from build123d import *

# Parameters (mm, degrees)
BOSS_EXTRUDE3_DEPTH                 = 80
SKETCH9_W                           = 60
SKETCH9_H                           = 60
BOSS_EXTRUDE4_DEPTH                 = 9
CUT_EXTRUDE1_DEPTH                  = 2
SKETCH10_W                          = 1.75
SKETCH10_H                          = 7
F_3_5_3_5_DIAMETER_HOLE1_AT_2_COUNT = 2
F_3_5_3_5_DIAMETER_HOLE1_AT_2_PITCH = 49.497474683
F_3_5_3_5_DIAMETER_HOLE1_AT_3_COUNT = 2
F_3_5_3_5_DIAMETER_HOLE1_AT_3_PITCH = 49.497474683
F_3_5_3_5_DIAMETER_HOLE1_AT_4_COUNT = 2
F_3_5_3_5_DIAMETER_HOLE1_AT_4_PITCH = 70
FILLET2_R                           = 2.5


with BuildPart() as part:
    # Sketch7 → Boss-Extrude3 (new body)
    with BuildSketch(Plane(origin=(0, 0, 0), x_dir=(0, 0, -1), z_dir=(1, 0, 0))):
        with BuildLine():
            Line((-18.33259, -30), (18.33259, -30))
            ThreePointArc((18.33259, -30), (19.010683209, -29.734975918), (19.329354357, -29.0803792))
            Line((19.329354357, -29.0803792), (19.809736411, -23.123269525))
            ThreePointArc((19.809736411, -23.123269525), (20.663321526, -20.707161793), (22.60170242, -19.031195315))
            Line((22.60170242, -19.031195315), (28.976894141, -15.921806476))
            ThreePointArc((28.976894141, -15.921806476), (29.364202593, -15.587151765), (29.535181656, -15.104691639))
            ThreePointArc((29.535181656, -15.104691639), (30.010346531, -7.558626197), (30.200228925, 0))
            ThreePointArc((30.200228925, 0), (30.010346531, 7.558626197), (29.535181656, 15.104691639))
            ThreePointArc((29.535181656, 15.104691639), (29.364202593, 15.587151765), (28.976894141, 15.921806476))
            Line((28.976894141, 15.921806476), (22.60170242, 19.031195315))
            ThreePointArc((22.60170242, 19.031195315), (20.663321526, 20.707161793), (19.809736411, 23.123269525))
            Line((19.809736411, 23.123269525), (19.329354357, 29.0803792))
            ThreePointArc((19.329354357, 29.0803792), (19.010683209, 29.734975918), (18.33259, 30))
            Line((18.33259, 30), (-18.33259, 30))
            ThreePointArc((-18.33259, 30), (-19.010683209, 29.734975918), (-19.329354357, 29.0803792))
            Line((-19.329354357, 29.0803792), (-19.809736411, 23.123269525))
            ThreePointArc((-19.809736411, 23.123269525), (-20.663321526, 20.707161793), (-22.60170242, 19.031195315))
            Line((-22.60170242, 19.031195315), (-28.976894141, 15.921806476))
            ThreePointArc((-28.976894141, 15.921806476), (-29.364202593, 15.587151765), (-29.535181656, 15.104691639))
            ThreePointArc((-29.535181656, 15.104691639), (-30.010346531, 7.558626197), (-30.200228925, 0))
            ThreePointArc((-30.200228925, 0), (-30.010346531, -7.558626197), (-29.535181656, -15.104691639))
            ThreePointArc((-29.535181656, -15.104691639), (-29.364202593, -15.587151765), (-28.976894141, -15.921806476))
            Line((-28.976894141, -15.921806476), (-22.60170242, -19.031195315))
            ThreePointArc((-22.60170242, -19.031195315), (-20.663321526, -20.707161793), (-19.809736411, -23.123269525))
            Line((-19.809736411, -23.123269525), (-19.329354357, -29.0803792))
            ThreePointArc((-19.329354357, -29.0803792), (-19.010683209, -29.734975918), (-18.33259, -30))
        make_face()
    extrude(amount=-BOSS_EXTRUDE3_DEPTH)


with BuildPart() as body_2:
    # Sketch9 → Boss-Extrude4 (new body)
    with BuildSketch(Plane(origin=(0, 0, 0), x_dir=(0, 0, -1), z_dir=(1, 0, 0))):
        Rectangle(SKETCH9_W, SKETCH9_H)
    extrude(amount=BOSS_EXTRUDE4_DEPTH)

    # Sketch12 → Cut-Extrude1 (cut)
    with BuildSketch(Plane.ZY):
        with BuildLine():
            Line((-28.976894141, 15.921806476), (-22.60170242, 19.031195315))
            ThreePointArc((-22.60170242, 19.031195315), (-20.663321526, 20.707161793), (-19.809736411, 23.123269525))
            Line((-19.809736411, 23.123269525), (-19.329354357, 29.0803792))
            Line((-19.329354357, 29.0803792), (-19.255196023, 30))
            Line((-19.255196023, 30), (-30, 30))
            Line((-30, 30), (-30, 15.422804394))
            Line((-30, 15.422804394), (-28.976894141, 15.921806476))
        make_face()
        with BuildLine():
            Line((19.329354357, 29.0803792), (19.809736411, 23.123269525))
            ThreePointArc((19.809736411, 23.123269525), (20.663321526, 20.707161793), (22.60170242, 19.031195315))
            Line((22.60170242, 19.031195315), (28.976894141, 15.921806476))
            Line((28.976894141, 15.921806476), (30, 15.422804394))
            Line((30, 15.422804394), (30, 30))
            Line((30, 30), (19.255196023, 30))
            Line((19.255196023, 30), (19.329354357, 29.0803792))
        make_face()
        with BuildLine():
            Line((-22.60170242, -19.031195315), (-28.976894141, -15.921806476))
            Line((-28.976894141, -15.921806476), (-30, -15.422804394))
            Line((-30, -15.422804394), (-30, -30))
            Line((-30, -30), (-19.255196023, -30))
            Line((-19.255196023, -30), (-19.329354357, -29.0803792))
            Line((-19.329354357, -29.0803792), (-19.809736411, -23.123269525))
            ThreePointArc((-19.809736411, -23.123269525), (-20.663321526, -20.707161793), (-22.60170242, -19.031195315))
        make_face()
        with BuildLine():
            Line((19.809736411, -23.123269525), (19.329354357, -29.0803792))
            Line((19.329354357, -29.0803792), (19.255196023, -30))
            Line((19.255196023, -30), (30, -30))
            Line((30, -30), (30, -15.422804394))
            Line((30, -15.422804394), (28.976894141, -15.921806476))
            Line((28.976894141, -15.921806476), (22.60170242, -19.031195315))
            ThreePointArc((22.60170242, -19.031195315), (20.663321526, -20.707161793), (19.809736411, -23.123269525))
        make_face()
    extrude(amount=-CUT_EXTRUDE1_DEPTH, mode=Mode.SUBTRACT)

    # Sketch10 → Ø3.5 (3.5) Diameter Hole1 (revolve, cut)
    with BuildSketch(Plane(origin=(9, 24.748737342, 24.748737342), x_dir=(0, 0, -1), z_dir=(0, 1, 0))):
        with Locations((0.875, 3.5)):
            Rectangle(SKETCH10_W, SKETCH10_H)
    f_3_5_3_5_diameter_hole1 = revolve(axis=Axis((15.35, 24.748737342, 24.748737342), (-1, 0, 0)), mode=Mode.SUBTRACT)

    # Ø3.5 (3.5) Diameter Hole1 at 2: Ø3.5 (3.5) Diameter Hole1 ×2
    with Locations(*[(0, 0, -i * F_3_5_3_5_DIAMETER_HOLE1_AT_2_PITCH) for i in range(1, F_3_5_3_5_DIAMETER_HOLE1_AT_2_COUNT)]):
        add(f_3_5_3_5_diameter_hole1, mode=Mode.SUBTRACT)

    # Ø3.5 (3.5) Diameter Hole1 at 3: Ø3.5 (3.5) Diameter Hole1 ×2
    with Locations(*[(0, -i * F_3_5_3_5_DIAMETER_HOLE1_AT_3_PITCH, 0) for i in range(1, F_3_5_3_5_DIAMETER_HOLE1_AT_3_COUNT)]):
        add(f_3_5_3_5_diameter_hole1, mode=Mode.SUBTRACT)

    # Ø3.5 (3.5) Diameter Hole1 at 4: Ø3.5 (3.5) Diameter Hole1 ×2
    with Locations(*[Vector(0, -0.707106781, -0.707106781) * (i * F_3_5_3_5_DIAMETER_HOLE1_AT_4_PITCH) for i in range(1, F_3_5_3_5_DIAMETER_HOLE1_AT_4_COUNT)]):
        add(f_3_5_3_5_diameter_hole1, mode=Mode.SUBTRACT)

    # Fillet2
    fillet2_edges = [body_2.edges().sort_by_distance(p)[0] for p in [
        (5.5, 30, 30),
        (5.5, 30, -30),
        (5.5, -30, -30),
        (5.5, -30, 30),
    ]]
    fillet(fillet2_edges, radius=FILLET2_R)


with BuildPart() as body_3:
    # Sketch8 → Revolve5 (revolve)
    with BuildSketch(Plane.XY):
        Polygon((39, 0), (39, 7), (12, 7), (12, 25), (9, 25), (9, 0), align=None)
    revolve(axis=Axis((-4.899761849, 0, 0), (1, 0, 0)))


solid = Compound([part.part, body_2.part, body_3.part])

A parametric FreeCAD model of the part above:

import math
import FreeCAD as App
import Part
import Sketcher

V = App.Vector
Q = App.Units.Quantity


def edges_at(feature, points):
    """Names of the edges that pass closest to the given points."""
    edges = feature.Shape.Edges
    near = lambda p: min(range(len(edges)), key=lambda i: edges[i].distToShape(Part.Vertex(*p))[0])
    return sorted({f"Edge{near(p) + 1}" for p in points})

doc = App.newDocument("Part")
params = doc.addObject("Spreadsheet::Sheet", "Params")
for row, (alias, value) in enumerate([
    ("sketch1_radius", "1 mm"),
    ("sketch1_radius2", "5 mm"),
    ("sketch1_radius3", "200.2 mm"),
    ("pad1_length", "80 mm"),
    ("sketch2_width", "60 mm"),
    ("pad2_length", "9 mm"),
    ("sketch3_radius", "5 mm"),
    ("pocket1_length", "2 mm"),
    ("sketch4_width", "7 mm"),
    ("sketch4_height", "1.75 mm"),
    ("groove_angle", "360 deg"),
    ("linearpattern_pitch", "49.497475 mm"),
    ("linearpattern2_pitch", "49.497475 mm"),
    ("linearpattern3_pitch", "70 mm"),
    ("fillet_radius", "2.5 mm"),
    ("sketch5_width", "27 mm"),
    ("sketch5_width2", "3 mm"),
    ("sketch5_height", "7 mm"),
    ("sketch5_height2", "18 mm"),
    ("revolution_angle", "360 deg"),
], start=1):
    params.set(f"A{row}", alias)
    params.set(f"B{row}", "=" + value)
    params.setAlias(f"B{row}", alias)

body = doc.addObject("PartDesign::Body", "Body")

# Sketch on YZ plane
sketch1 = doc.addObject("Sketcher::SketchObject", "Sketch")
body.addObject(sketch1)
sketch1.AttachmentSupport = (doc.YZ_Plane, [""])
sketch1.MapMode = "FlatFace"
sketch1.addGeometry([
    Part.LineSegment(V(-30, 18.3, 0), V(-30, -18.3, 0)),  # 0
    Part.ArcOfCircle(Part.Circle(V(-29, -18.3, 0), V(0, 0, 1), 1), math.radians(180), math.radians(265)),  # 1
    Part.LineSegment(V(-29.1, -19.3, 0), V(-23.1, -19.8, 0)),  # 2
    Part.ArcOfCircle(Part.Circle(V(-23.5, -24.8, 0), V(0, 0, 1), 5), math.radians(26), math.radians(85)),  # 3
    Part.LineSegment(V(-19, -22.6, 0), V(-15.9, -29, 0)),  # 4
    Part.ArcOfCircle(Part.Circle(V(-15, -28.5, 0), V(0, 0, 1), 1), math.radians(-154), math.radians(-95)),  # 5
    Part.ArcOfCircle(Part.Circle(V(1.2, 170, 0), V(0, 0, 1), 200.2), math.radians(-94.69), math.radians(-90.36)),  # 6
    Part.ArcOfCircle(Part.Circle(V(-1.2, 170, 0), V(0, 0, 1), 200.2), math.radians(-89.64), math.radians(-85.31)),  # 7
    Part.ArcOfCircle(Part.Circle(V(15, -28.5, 0), V(0, 0, 1), 1), math.radians(-85), math.radians(-26)),  # 8
    Part.LineSegment(V(15.9, -29, 0), V(19, -22.6, 0)),  # 9
    Part.ArcOfCircle(Part.Circle(V(23.5, -24.8, 0), V(0, 0, 1), 5), math.radians(95), math.radians(154)),  # 10
    Part.LineSegment(V(23.1, -19.8, 0), V(29.1, -19.3, 0)),  # 11
    Part.ArcOfCircle(Part.Circle(V(29, -18.3, 0), V(0, 0, 1), 1), math.radians(-85), math.radians(0)),  # 12
    Part.LineSegment(V(30, -18.3, 0), V(30, 18.3, 0)),  # 13
    Part.ArcOfCircle(Part.Circle(V(29, 18.3, 0), V(0, 0, 1), 1), math.radians(0), math.radians(85)),  # 14
    Part.LineSegment(V(29.1, 19.3, 0), V(23.1, 19.8, 0)),  # 15
    Part.ArcOfCircle(Part.Circle(V(23.5, 24.8, 0), V(0, 0, 1), 5), math.radians(-154), math.radians(-95)),  # 16
    Part.LineSegment(V(19, 22.6, 0), V(15.9, 29, 0)),  # 17
    Part.ArcOfCircle(Part.Circle(V(15, 28.5, 0), V(0, 0, 1), 1), math.radians(26), math.radians(85)),  # 18
    Part.ArcOfCircle(Part.Circle(V(-1.2, -170, 0), V(0, 0, 1), 200.2), math.radians(85.31), math.radians(89.64)),  # 19
    Part.ArcOfCircle(Part.Circle(V(1.2, -170, 0), V(0, 0, 1), 200.2), math.radians(90.36), math.radians(94.69)),  # 20
    Part.ArcOfCircle(Part.Circle(V(-15, 28.5, 0), V(0, 0, 1), 1), math.radians(95), math.radians(154)),  # 21
    Part.LineSegment(V(-15.9, 29, 0), V(-19, 22.6, 0)),  # 22
    Part.ArcOfCircle(Part.Circle(V(-23.5, 24.8, 0), V(0, 0, 1), 5), math.radians(-85), math.radians(-26)),  # 23
    Part.LineSegment(V(-23.1, 19.8, 0), V(-29.1, 19.3, 0)),  # 24
    Part.ArcOfCircle(Part.Circle(V(-29, 18.3, 0), V(0, 0, 1), 1), math.radians(95), math.radians(180)),  # 25
], False)
sketch1.addConstraint([
    Sketcher.Constraint("Tangent", 0, 2, 1, 1),
    Sketcher.Constraint("Tangent", 1, 2, 2, 1),
    Sketcher.Constraint("Tangent", 2, 2, 3, 2),
    Sketcher.Constraint("Tangent", 3, 1, 4, 1),
    Sketcher.Constraint("Tangent", 4, 2, 5, 1),
    Sketcher.Constraint("Tangent", 5, 2, 6, 1),
    Sketcher.Constraint("Coincident", 6, 2, 7, 1),
    Sketcher.Constraint("Tangent", 7, 2, 8, 1),
    Sketcher.Constraint("Tangent", 8, 2, 9, 1),
    Sketcher.Constraint("Tangent", 9, 2, 10, 2),
    Sketcher.Constraint("Tangent", 10, 1, 11, 1),
    Sketcher.Constraint("Tangent", 11, 2, 12, 1),
    Sketcher.Constraint("Tangent", 12, 2, 13, 1),
    Sketcher.Constraint("Tangent", 13, 2, 14, 1),
    Sketcher.Constraint("Tangent", 14, 2, 15, 1),
    Sketcher.Constraint("Tangent", 15, 2, 16, 2),
    Sketcher.Constraint("Tangent", 16, 1, 17, 1),
    Sketcher.Constraint("Tangent", 17, 2, 18, 1),
    Sketcher.Constraint("Tangent", 18, 2, 19, 1),
    Sketcher.Constraint("Coincident", 19, 2, 20, 1),
    Sketcher.Constraint("Tangent", 20, 2, 21, 1),
    Sketcher.Constraint("Tangent", 21, 2, 22, 1),
    Sketcher.Constraint("Tangent", 22, 2, 23, 2),
    Sketcher.Constraint("Tangent", 23, 1, 24, 1),
    Sketcher.Constraint("Tangent", 24, 2, 25, 1),
    Sketcher.Constraint("Tangent", 25, 2, 0, 1),
    Sketcher.Constraint("Vertical", 0),
    Sketcher.Constraint("Vertical", 13),
    Sketcher.Constraint("Equal", 1, 5),
    Sketcher.Constraint("Equal", 6, 7),
    Sketcher.Constraint("Equal", 5, 8),
    Sketcher.Constraint("Equal", 3, 10),
    Sketcher.Constraint("Equal", 8, 12),
    Sketcher.Constraint("Equal", 12, 14),
    Sketcher.Constraint("Equal", 10, 16),
    Sketcher.Constraint("Equal", 14, 18),
    Sketcher.Constraint("Equal", 7, 19),
    Sketcher.Constraint("Equal", 19, 20),
    Sketcher.Constraint("Equal", 18, 21),
    Sketcher.Constraint("Equal", 16, 23),
    Sketcher.Constraint("Equal", 21, 25),
    Sketcher.Constraint("Symmetric", 1, 3, 14, 3, -1, 1),
    Sketcher.Constraint("Symmetric", 3, 3, 16, 3, -1, 1),
    Sketcher.Constraint("Symmetric", 5, 3, 18, 3, -1, 1),
    Sketcher.Constraint("Symmetric", 7, 3, 20, 3, -1, 1),
    Sketcher.Constraint("Symmetric", 10, 3, 23, 3, -1, 1),
    Sketcher.Constraint("Symmetric", 6, 3, 7, 3, -2),
    Sketcher.Constraint("Symmetric", 3, 3, 10, 3, -2),
    Sketcher.Constraint("PointOnObject", 19, 2, -2),
    Sketcher.Constraint("Parallel", 9, 22),
    Sketcher.Constraint("Parallel", 11, 24),
    Sketcher.Constraint("Horizontal", 5, 3, 8, 3),
    Sketcher.Constraint("Horizontal", 1, 3, 12, 3),
    Sketcher.Constraint("Radius", 1, 1.0),
    Sketcher.Constraint("Radius", 3, 5.0),
    Sketcher.Constraint("Radius", 6, 200.2),
    Sketcher.Constraint("Angle", 4, Q("-63.999999 deg")),
    Sketcher.Constraint("DistanceX", 1, 3, -1, 1, 29.0),
    Sketcher.Constraint("DistanceY", 0, 2, 0, 1, 36.66518),
    Sketcher.Constraint("Distance", 4, 7.093051),
    Sketcher.Constraint("DistanceY", 3, 3, -1, 1, 24.793558),
    Sketcher.Constraint("DistanceX", 1, 2, -1, 1, 29.080379),
    Sketcher.Constraint("DistanceY", 6, 2, -1, 1, 30.200229),
])
sketch1.setExpression("Constraints[53]", "Params.sketch1_radius")
sketch1.setExpression("Constraints[54]", "Params.sketch1_radius2")
sketch1.setExpression("Constraints[55]", "Params.sketch1_radius3")
pad1 = doc.addObject("PartDesign::Pad", "Pad")
body.addObject(pad1)
pad1.Profile = sketch1
pad1.setExpression("Length", "Params.pad1_length")
pad1.Reversed = True
body2 = doc.addObject("PartDesign::Body", "Body001")

# Sketch on YZ plane
sketch2 = doc.addObject("Sketcher::SketchObject", "Sketch001")
body2.addObject(sketch2)
sketch2.AttachmentSupport = (doc.getObject("YZ_Plane001"), [""])
sketch2.MapMode = "FlatFace"
sketch2.addGeometry([
    Part.LineSegment(V(30, 30, 0), V(-30, 30, 0)),
    Part.LineSegment(V(-30, 30, 0), V(-30, -30, 0)),
    Part.LineSegment(V(-30, -30, 0), V(30, -30, 0)),
    Part.LineSegment(V(30, -30, 0), V(30, 30, 0)),
], False)
sketch2.addConstraint([
    Sketcher.Constraint("Coincident", 0, 2, 1, 1),
    Sketcher.Constraint("Coincident", 1, 2, 2, 1),
    Sketcher.Constraint("Coincident", 2, 2, 3, 1),
    Sketcher.Constraint("Coincident", 3, 2, 0, 1),
    Sketcher.Constraint("Horizontal", 0),
    Sketcher.Constraint("Vertical", 1),
    Sketcher.Constraint("Horizontal", 2),
    Sketcher.Constraint("Vertical", 3),
    Sketcher.Constraint("Symmetric", 0, 2, 2, 2, -1, 1),
    Sketcher.Constraint("Equal", 2, 1),
    Sketcher.Constraint("DistanceX", 0, 2, 0, 1, 60.0),
])
sketch2.setExpression("Constraints[10]", "Params.sketch2_width")
pad2 = doc.addObject("PartDesign::Pad", "Pad001")
body2.addObject(pad2)
pad2.Profile = sketch2
pad2.setExpression("Length", "Params.pad2_length")

# Sketch on YZ plane
sketch3 = doc.addObject("Sketcher::SketchObject", "Sketch002")
body2.addObject(sketch3)
sketch3.AttachmentSupport = (doc.getObject("YZ_Plane001"), [""])
sketch3.MapMode = "FlatFace"
sketch3.addGeometry([
    Part.LineSegment(V(15.9, -29, 0), V(19, -22.6, 0)),  # 0
    Part.ArcOfCircle(Part.Circle(V(23.5, -24.8, 0), V(0, 0, 1), 5), math.radians(95), math.radians(154)),  # 1
    Part.LineSegment(V(23.1, -19.8, 0), V(29.1, -19.3, 0)),  # 2
    Part.LineSegment(V(29.1, -19.3, 0), V(30, -19.3, 0)),  # 3
    Part.LineSegment(V(30, -19.3, 0), V(30, -30, 0)),  # 4
    Part.LineSegment(V(30, -30, 0), V(15.4, -30, 0)),  # 5
    Part.LineSegment(V(15.4, -30, 0), V(15.9, -29, 0)),  # 6
    Part.LineSegment(V(29.1, 19.3, 0), V(23.1, 19.8, 0)),  # 7
    Part.ArcOfCircle(Part.Circle(V(23.5, 24.8, 0), V(0, 0, 1), 5), math.radians(-154), math.radians(-95)),  # 8
    Part.LineSegment(V(19, 22.6, 0), V(15.9, 29, 0)),  # 9
    Part.LineSegment(V(15.9, 29, 0), V(15.4, 30, 0)),  # 10
    Part.LineSegment(V(15.4, 30, 0), V(30, 30, 0)),  # 11
    Part.LineSegment(V(30, 30, 0), V(30, 19.3, 0)),  # 12
    Part.LineSegment(V(30, 19.3, 0), V(29.1, 19.3, 0)),  # 13
    Part.LineSegment(V(-19, -22.6, 0), V(-15.9, -29, 0)),  # 14
    Part.LineSegment(V(-15.9, -29, 0), V(-15.4, -30, 0)),  # 15
    Part.LineSegment(V(-15.4, -30, 0), V(-30, -30, 0)),  # 16
    Part.LineSegment(V(-30, -30, 0), V(-30, -19.3, 0)),  # 17
    Part.LineSegment(V(-30, -19.3, 0), V(-29.1, -19.3, 0)),  # 18
    Part.LineSegment(V(-29.1, -19.3, 0), V(-23.1, -19.8, 0)),  # 19
    Part.ArcOfCircle(Part.Circle(V(-23.5, -24.8, 0), V(0, 0, 1), 5), math.radians(26), math.radians(85)),  # 20
    Part.LineSegment(V(-23.1, 19.8, 0), V(-29.1, 19.3, 0)),  # 21
    Part.LineSegment(V(-29.1, 19.3, 0), V(-30, 19.3, 0)),  # 22
    Part.LineSegment(V(-30, 19.3, 0), V(-30, 30, 0)),  # 23
    Part.LineSegment(V(-30, 30, 0), V(-15.4, 30, 0)),  # 24
    Part.LineSegment(V(-15.4, 30, 0), V(-15.9, 29, 0)),  # 25
    Part.LineSegment(V(-15.9, 29, 0), V(-19, 22.6, 0)),  # 26
    Part.ArcOfCircle(Part.Circle(V(-23.5, 24.8, 0), V(0, 0, 1), 5), math.radians(-85), math.radians(-26)),  # 27
], False)
sketch3.addConstraint([
    Sketcher.Constraint("Tangent", 0, 2, 1, 2),
    Sketcher.Constraint("Tangent", 1, 1, 2, 1),
    Sketcher.Constraint("Coincident", 2, 2, 3, 1),
    Sketcher.Constraint("Coincident", 3, 2, 4, 1),
    Sketcher.Constraint("Coincident", 4, 2, 5, 1),
    Sketcher.Constraint("Coincident", 5, 2, 6, 1),
    Sketcher.Constraint("Coincident", 6, 2, 0, 1),
    Sketcher.Constraint("Tangent", 7, 2, 8, 2),
    Sketcher.Constraint("Tangent", 8, 1, 9, 1),
    Sketcher.Constraint("Coincident", 9, 2, 10, 1),
    Sketcher.Constraint("Coincident", 10, 2, 11, 1),
    Sketcher.Constraint("Coincident", 11, 2, 12, 1),
    Sketcher.Constraint("Coincident", 12, 2, 13, 1),
    Sketcher.Constraint("Coincident", 13, 2, 7, 1),
    Sketcher.Constraint("Coincident", 14, 2, 15, 1),
    Sketcher.Constraint("Coincident", 15, 2, 16, 1),
    Sketcher.Constraint("Coincident", 16, 2, 17, 1),
    Sketcher.Constraint("Coincident", 17, 2, 18, 1),
    Sketcher.Constraint("Coincident", 18, 2, 19, 1),
    Sketcher.Constraint("Tangent", 19, 2, 20, 2),
    Sketcher.Constraint("Tangent", 20, 1, 14, 1),
    Sketcher.Constraint("Coincident", 21, 2, 22, 1),
    Sketcher.Constraint("Coincident", 22, 2, 23, 1),
    Sketcher.Constraint("Coincident", 23, 2, 24, 1),
    Sketcher.Constraint("Coincident", 24, 2, 25, 1),
    Sketcher.Constraint("Coincident", 25, 2, 26, 1),
    Sketcher.Constraint("Tangent", 26, 2, 27, 2),
    Sketcher.Constraint("Tangent", 27, 1, 21, 1),
    Sketcher.Constraint("Vertical", 4),
    Sketcher.Constraint("Horizontal", 5),
    Sketcher.Constraint("Horizontal", 11),
    Sketcher.Constraint("Vertical", 12),
    Sketcher.Constraint("Horizontal", 16),
    Sketcher.Constraint("Vertical", 17),
    Sketcher.Constraint("Vertical", 23),
    Sketcher.Constraint("Horizontal", 24),
    Sketcher.Constraint("Equal", 1, 8),
    Sketcher.Constraint("Equal", 8, 20),
    Sketcher.Constraint("Equal", 20, 27),
    Sketcher.Constraint("Symmetric", 8, 3, 20, 3, -1, 1),
    Sketcher.Constraint("Symmetric", 1, 3, 27, 3, -1, 1),
    Sketcher.Constraint("Symmetric", 9, 2, 14, 2, -1, 1),
    Sketcher.Constraint("Symmetric", 10, 2, 15, 2, -1, 1),
    Sketcher.Constraint("Symmetric", 12, 2, 17, 2, -1, 1),
    Sketcher.Constraint("Symmetric", 13, 2, 18, 2, -1, 1),
    Sketcher.Constraint("Symmetric", 2, 2, 21, 2, -1, 1),
    Sketcher.Constraint("Symmetric", 3, 2, 22, 2, -1, 1),
    Sketcher.Constraint("Symmetric", 5, 2, 24, 2, -1, 1),
    Sketcher.Constraint("Symmetric", 6, 2, 25, 2, -1, 1),
    Sketcher.Constraint("Symmetric", 1, 3, 20, 3, -2),
    Sketcher.Constraint("Symmetric", 6, 2, 14, 2, -2),
    Sketcher.Constraint("Symmetric", 5, 2, 15, 2, -2),
    Sketcher.Constraint("Symmetric", 3, 2, 17, 2, -2),
    Sketcher.Constraint("Symmetric", 2, 2, 18, 2, -2),
    Sketcher.Constraint("Parallel", 2, 3),
    Sketcher.Constraint("Parallel", 0, 6),
    Sketcher.Constraint("Radius", 1, 5.0),
    Sketcher.Constraint("Angle", 0, Q("63.999999 deg")),
    Sketcher.Constraint("DistanceX", -1, 1, 3, 2, 30.0),
    Sketcher.Constraint("DistanceY", 4, 2, -1, 1, 30.0),
    Sketcher.Constraint("DistanceX", 14, 2, 0, 2, 34.953002),
    Sketcher.Constraint("DistanceX", 15, 2, 0, 2, 34.454),
    Sketcher.Constraint("DistanceY", 12, 2, 9, 2, 9.721698),
    Sketcher.Constraint("Distance", 0, 7.093051),
    Sketcher.Constraint("DistanceX", -1, 1, 2, 2, 29.080379),
])
sketch3.setExpression("Constraints[56]", "Params.sketch3_radius")
pocket1 = doc.addObject("PartDesign::Pocket", "Pocket")
body2.addObject(pocket1)
pocket1.Profile = sketch3
pocket1.setExpression("Length", "Params.pocket1_length")
pocket1.Reversed = True

# Sketch on XZ plane
sketch4 = doc.addObject("Sketcher::SketchObject", "Sketch003")
body2.addObject(sketch4)
sketch4.AttachmentSupport = (doc.getObject("XZ_Plane001"), [""])
sketch4.MapMode = "FlatFace"
sketch4.AttachmentOffset = App.Placement(V(0, 0, -24.748737), App.Rotation())
sketch4.addGeometry([
    Part.LineSegment(V(2, 24.7, 0), V(9, 24.7, 0)),
    Part.LineSegment(V(9, 24.7, 0), V(9, 23, 0)),
    Part.LineSegment(V(9, 23, 0), V(2, 23, 0)),
    Part.LineSegment(V(2, 23, 0), V(2, 24.7, 0)),
], False)
sketch4.addGeometry(Part.LineSegment(V(9, 24.7, 0), V(2, 24.7, 0)), True)  # axis
sketch4.addConstraint([
    Sketcher.Constraint("Coincident", 0, 2, 1, 1),
    Sketcher.Constraint("Coincident", 1, 2, 2, 1),
    Sketcher.Constraint("Coincident", 2, 2, 3, 1),
    Sketcher.Constraint("Coincident", 3, 2, 0, 1),
    Sketcher.Constraint("Horizontal", 0),
    Sketcher.Constraint("Vertical", 1),
    Sketcher.Constraint("Horizontal", 2),
    Sketcher.Constraint("Vertical", 3),
    Sketcher.Constraint("Horizontal", 4),
    Sketcher.Constraint("Coincident", 4, 1, 0, 2),
    Sketcher.Constraint("Vertical", 2, 2, 4, 2),
    Sketcher.Constraint("DistanceX", 0, 1, 0, 2, 7.0),
    Sketcher.Constraint("DistanceX", -1, 1, 0, 2, 9.0),
    Sketcher.Constraint("DistanceY", 1, 2, 1, 1, 1.75),
    Sketcher.Constraint("DistanceY", -1, 1, 0, 2, 24.748737),
])
sketch4.setExpression("Constraints[11]", "Params.sketch4_width")
sketch4.setExpression("Constraints[13]", "Params.sketch4_height")
groove = doc.addObject("PartDesign::Groove", "Groove")
body2.addObject(groove)
groove.Profile = sketch4
groove.ReferenceAxis = (sketch4, ["Axis0"])
groove.setExpression("Angle", "Params.groove_angle")
doc.recompute()

linearpattern = doc.addObject("PartDesign::LinearPattern", "LinearPattern")
body2.addObject(linearpattern)
linearpattern.Originals = [groove]
linearpattern.Direction = (doc.getObject("Z_Axis001"), [""])
linearpattern.Mode = "offset"
linearpattern.setExpression("Offset", "Params.linearpattern_pitch")
linearpattern.Occurrences = 2
linearpattern.Reversed = True
body2.Tip = linearpattern
doc.recompute()

linearpattern2 = doc.addObject("PartDesign::LinearPattern", "LinearPattern001")
body2.addObject(linearpattern2)
linearpattern2.Originals = [groove]
linearpattern2.Direction = (doc.getObject("Y_Axis001"), [""])
linearpattern2.Mode = "offset"
linearpattern2.setExpression("Offset", "Params.linearpattern2_pitch")
linearpattern2.Occurrences = 2
linearpattern2.Reversed = True
body2.Tip = linearpattern2
doc.recompute()

datumline = doc.addObject("PartDesign::Line", "DatumLine")
body2.addObject(datumline)
datumline.Placement = App.Placement(V(0, 0, 0), App.Rotation(V(0, 0, 1), V(0, -0.707106781, -0.707106781)))
linearpattern3 = doc.addObject("PartDesign::LinearPattern", "LinearPattern002")
body2.addObject(linearpattern3)
linearpattern3.Originals = [groove]
linearpattern3.Direction = (datumline, [""])
linearpattern3.Mode = "offset"
linearpattern3.setExpression("Offset", "Params.linearpattern3_pitch")
linearpattern3.Occurrences = 2
body2.Tip = linearpattern3
doc.recompute()

fillet = doc.addObject("PartDesign::Fillet", "Fillet")
body2.addObject(fillet)
fillet.Base = (linearpattern3, edges_at(linearpattern3, [
    (5.5, 30, 30),
    (5.5, 30, -30),
    (5.5, -30, -30),
    (5.5, -30, 30),
]))
fillet.setExpression("Radius", "Params.fillet_radius")
body3 = doc.addObject("PartDesign::Body", "Body002")

# Sketch on XY plane
sketch5 = doc.addObject("Sketcher::SketchObject", "Sketch004")
body3.addObject(sketch5)
sketch5.AttachmentSupport = (doc.getObject("XY_Plane002"), [""])
sketch5.MapMode = "FlatFace"
sketch5.addGeometry([
    Part.LineSegment(V(39, 0, 0), V(39, 7, 0)),  # 0
    Part.LineSegment(V(39, 7, 0), V(12, 7, 0)),  # 1
    Part.LineSegment(V(12, 7, 0), V(12, 25, 0)),  # 2
    Part.LineSegment(V(12, 25, 0), V(9, 25, 0)),  # 3
    Part.LineSegment(V(9, 25, 0), V(9, 0, 0)),  # 4
    Part.LineSegment(V(9, 0, 0), V(39, 0, 0)),  # 5
], False)
sketch5.addConstraint([
    Sketcher.Constraint("Coincident", 0, 2, 1, 1),
    Sketcher.Constraint("Coincident", 1, 2, 2, 1),
    Sketcher.Constraint("Coincident", 2, 2, 3, 1),
    Sketcher.Constraint("Coincident", 3, 2, 4, 1),
    Sketcher.Constraint("Coincident", 4, 2, 5, 1),
    Sketcher.Constraint("Coincident", 5, 2, 0, 1),
    Sketcher.Constraint("Vertical", 0),
    Sketcher.Constraint("Horizontal", 1),
    Sketcher.Constraint("Vertical", 2),
    Sketcher.Constraint("Horizontal", 3),
    Sketcher.Constraint("Vertical", 4),
    Sketcher.Constraint("Horizontal", 5),
    Sketcher.Constraint("PointOnObject", 4, 2, -1),
    Sketcher.Constraint("DistanceX", 1, 2, 1, 1, 27.0),
    Sketcher.Constraint("DistanceX", 3, 2, 3, 1, 3.0),
    Sketcher.Constraint("DistanceY", 0, 1, 0, 2, 7.0),
    Sketcher.Constraint("DistanceY", 2, 1, 2, 2, 18.0),
    Sketcher.Constraint("DistanceX", -1, 1, 0, 2, 39.0),
])
sketch5.setExpression("Constraints[13]", "Params.sketch5_width")
sketch5.setExpression("Constraints[14]", "Params.sketch5_width2")
sketch5.setExpression("Constraints[15]", "Params.sketch5_height")
sketch5.setExpression("Constraints[16]", "Params.sketch5_height2")
revolution = doc.addObject("PartDesign::Revolution", "Revolution")
body3.addObject(revolution)
revolution.Profile = sketch5
revolution.ReferenceAxis = (sketch5, ["H_Axis"])
revolution.setExpression("Angle", "Params.revolution_angle")

doc.recompute()
